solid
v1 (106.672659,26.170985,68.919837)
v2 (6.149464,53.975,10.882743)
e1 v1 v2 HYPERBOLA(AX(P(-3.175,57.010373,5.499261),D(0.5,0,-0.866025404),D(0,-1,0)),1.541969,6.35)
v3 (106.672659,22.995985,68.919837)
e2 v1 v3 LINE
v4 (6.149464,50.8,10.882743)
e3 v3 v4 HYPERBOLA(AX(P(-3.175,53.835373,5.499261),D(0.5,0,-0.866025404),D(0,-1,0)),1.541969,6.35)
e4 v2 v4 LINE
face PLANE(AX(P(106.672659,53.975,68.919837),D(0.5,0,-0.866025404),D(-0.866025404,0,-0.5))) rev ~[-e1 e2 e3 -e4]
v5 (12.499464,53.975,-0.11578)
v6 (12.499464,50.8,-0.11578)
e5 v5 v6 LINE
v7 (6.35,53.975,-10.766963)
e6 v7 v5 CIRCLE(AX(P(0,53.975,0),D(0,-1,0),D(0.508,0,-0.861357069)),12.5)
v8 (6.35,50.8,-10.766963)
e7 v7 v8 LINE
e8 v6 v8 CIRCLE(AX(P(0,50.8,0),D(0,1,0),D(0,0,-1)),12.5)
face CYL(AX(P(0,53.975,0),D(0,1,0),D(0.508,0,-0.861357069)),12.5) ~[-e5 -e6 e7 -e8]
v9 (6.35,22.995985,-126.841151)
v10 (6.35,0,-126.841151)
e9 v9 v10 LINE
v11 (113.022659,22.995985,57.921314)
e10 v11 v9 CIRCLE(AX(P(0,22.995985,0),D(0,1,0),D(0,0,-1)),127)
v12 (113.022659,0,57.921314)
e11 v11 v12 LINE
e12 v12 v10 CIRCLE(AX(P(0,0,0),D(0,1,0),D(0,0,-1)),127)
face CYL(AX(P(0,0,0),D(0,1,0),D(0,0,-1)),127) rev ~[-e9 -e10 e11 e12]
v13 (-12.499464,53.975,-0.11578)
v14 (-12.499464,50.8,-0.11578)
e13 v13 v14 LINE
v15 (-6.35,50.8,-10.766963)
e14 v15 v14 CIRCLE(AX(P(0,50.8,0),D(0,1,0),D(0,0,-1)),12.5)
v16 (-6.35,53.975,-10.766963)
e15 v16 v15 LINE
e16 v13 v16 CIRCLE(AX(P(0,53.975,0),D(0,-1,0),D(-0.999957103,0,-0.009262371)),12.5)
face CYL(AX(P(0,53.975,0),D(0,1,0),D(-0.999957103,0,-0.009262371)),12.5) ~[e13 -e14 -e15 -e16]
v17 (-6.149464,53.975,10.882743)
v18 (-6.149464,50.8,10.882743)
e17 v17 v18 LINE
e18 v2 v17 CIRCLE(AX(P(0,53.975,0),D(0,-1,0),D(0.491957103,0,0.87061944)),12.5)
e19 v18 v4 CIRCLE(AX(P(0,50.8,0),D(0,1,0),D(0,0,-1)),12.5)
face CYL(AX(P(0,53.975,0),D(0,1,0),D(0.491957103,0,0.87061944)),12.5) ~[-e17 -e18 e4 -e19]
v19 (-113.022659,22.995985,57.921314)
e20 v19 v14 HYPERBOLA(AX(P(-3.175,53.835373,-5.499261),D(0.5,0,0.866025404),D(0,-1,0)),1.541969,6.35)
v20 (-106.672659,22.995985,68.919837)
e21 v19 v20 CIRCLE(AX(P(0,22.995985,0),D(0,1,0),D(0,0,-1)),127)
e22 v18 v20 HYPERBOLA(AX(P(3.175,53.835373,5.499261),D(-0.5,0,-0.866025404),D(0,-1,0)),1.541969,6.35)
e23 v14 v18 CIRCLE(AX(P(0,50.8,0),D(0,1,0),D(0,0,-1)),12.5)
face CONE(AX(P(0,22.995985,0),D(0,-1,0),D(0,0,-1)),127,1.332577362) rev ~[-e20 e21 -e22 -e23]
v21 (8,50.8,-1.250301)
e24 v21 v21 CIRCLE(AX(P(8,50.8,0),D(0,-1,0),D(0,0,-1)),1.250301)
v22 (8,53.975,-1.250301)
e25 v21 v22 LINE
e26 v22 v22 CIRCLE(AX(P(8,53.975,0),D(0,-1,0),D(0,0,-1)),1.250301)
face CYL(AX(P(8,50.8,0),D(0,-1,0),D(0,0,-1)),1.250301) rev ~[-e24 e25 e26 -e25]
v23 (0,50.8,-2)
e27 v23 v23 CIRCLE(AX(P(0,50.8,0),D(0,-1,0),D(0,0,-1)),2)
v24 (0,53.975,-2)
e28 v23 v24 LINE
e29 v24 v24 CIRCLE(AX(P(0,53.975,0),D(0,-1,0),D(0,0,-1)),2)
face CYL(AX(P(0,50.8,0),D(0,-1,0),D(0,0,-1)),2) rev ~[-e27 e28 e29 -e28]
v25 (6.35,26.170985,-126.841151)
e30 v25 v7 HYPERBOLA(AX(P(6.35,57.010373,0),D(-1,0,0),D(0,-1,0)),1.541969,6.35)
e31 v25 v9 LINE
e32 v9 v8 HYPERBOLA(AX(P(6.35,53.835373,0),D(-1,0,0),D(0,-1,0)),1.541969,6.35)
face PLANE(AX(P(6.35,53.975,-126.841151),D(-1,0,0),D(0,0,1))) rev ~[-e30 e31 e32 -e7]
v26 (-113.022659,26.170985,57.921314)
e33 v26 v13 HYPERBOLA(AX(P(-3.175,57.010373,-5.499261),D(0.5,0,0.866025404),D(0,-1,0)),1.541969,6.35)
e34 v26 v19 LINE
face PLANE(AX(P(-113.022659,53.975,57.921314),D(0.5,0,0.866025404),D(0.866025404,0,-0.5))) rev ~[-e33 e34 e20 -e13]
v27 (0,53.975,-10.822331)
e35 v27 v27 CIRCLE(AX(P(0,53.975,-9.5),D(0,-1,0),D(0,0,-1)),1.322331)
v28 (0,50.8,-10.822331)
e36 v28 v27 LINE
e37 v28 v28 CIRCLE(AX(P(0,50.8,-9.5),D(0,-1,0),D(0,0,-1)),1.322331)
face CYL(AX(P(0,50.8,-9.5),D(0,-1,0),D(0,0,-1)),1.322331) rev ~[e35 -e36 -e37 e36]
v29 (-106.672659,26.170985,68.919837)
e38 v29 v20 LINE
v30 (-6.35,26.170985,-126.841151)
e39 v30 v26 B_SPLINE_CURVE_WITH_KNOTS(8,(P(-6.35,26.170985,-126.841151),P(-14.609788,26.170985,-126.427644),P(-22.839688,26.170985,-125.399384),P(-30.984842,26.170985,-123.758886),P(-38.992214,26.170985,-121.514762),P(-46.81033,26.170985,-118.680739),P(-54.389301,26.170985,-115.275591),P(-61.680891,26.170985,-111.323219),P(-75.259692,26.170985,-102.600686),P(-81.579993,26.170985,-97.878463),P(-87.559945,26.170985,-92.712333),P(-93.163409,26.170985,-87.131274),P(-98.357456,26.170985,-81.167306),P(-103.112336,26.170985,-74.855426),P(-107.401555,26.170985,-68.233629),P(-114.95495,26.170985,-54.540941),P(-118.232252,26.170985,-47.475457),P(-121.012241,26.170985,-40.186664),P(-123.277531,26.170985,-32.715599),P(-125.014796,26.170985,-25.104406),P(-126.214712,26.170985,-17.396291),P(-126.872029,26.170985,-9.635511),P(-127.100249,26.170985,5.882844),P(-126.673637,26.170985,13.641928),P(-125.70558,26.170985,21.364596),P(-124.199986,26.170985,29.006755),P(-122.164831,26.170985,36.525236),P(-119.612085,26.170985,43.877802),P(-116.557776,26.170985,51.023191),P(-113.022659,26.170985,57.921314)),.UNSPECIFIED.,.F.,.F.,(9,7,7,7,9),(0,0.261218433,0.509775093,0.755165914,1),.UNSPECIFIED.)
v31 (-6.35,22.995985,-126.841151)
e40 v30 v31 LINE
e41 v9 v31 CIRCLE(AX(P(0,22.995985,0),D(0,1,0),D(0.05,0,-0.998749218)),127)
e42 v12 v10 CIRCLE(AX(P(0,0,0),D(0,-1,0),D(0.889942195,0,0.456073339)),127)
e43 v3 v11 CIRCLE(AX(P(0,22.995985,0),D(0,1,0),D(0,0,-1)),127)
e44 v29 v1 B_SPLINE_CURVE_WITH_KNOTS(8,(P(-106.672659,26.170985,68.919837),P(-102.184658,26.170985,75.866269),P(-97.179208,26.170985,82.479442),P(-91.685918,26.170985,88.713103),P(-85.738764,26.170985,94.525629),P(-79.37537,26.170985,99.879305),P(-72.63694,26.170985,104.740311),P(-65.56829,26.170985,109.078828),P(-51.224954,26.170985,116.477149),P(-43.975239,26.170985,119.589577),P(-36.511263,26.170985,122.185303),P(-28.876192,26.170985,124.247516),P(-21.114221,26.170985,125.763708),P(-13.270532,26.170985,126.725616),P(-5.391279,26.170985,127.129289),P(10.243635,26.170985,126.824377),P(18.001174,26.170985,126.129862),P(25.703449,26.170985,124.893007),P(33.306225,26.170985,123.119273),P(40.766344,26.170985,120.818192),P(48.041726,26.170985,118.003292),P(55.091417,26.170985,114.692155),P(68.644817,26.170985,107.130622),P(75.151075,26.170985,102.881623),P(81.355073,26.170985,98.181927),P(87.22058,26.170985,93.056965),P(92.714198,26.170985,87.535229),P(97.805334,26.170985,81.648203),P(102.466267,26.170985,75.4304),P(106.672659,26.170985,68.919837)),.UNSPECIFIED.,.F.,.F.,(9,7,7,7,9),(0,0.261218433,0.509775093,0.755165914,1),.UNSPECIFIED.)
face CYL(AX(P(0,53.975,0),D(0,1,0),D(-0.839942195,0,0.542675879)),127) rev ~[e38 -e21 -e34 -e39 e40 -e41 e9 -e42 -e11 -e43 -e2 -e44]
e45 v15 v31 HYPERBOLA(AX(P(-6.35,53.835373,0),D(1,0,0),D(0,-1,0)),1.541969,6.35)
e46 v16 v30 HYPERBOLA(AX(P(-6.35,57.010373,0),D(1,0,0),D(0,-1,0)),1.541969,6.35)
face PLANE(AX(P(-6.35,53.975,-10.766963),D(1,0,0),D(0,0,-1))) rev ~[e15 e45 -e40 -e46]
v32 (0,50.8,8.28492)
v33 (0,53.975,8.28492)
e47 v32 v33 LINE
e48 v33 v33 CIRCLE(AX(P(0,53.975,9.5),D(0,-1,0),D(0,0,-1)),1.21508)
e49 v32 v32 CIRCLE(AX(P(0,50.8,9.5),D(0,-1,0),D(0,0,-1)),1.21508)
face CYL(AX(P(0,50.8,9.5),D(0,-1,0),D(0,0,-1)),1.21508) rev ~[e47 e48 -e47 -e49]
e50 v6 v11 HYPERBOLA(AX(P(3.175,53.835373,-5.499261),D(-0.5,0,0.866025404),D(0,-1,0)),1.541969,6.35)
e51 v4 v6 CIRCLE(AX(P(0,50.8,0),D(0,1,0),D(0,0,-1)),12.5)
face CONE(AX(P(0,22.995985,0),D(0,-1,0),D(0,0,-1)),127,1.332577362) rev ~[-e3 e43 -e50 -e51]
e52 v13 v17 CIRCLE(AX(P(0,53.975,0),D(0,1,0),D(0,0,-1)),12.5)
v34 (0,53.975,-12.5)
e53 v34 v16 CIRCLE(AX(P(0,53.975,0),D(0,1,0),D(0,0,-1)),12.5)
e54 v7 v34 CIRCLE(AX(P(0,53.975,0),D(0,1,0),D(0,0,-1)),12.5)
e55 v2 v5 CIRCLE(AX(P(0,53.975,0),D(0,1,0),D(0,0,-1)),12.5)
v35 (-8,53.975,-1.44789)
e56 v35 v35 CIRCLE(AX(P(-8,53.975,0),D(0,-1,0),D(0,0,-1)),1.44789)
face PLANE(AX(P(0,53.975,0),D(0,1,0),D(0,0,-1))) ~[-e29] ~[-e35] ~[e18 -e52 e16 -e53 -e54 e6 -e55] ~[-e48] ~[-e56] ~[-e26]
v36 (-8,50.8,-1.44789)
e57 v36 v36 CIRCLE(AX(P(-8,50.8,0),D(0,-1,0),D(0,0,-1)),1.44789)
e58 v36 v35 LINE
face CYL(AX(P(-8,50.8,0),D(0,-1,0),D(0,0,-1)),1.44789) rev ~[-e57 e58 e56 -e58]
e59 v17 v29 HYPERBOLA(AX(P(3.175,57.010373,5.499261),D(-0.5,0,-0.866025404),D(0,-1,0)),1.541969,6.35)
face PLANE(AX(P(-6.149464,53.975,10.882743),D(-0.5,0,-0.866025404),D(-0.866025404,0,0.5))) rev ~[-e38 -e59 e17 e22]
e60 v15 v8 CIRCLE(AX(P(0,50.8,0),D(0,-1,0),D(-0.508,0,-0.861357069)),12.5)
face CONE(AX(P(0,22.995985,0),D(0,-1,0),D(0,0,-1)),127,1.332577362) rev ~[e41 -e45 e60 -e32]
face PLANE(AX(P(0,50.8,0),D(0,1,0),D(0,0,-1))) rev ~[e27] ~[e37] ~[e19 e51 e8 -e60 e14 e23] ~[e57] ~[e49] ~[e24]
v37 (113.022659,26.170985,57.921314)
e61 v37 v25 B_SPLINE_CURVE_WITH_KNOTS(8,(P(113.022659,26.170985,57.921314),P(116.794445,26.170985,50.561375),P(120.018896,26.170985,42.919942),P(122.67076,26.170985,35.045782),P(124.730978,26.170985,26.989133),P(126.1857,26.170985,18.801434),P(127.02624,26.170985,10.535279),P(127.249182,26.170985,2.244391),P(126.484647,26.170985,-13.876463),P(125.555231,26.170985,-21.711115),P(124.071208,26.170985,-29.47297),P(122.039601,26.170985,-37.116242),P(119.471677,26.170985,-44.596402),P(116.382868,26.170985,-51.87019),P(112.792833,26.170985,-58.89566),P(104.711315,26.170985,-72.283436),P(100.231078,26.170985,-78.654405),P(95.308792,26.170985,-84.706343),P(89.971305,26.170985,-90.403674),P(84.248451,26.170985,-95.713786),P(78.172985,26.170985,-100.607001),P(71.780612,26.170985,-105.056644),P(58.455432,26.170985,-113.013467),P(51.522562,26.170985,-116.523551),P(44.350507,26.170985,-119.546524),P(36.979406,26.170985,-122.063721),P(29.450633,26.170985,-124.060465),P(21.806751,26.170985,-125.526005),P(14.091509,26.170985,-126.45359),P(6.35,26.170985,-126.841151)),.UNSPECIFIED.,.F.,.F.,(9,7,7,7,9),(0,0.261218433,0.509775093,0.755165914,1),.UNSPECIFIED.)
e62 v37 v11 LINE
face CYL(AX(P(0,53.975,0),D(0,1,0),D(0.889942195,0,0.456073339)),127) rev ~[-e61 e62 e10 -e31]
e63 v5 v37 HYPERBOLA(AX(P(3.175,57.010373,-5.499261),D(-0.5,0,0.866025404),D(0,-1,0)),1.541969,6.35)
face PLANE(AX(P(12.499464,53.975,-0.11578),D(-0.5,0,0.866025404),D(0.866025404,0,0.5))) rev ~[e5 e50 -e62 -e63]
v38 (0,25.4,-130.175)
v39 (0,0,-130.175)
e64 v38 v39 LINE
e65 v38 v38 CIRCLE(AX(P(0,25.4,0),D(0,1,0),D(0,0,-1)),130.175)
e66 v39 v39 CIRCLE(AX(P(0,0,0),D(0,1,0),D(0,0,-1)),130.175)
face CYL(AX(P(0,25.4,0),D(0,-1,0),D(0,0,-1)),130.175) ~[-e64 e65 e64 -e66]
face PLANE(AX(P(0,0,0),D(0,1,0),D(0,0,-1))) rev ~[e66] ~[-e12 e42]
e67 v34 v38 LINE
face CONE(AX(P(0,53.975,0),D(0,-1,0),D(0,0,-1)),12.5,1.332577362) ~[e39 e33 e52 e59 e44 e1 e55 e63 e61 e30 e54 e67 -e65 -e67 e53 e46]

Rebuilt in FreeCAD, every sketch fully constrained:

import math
import FreeCAD as App
import Part
import Sketcher
from FreeCAD import Vector
Q = App.Units.Quantity


def add_polygon(sketch, points):
    """Adds a closed chain of lines whose ends are joined by coincident constraints."""
    first, n = sketch.GeometryCount, len(points)
    for a, b in zip(points, points[1:] + points[:1]):
        sketch.addGeometry(Part.LineSegment(App.Vector(*a, 0), App.Vector(*b, 0)), False)
    for i in range(n):
        sketch.addConstraint(Sketcher.Constraint("Coincident", first + i, 2, first + (i + 1) % n, 1))

doc = App.newDocument("Part")
body = doc.addObject("PartDesign::Body", "Body")

sketch1 = body.newObject("Sketcher::SketchObject", "Sketch")
sketch1.AttachmentSupport = (doc.getObject("XY_Plane"), [""])
sketch1.MapMode = "FlatFace"
add_polygon(sketch1, [(0, 54), (0, 50.8), (12.5, 50.8), (127, 23), (127, 0), (130.2, 0), (130.2, 25.4), (12.5, 54)])
sketch1.addConstraint([
    Sketcher.Constraint("Vertical", 0),
    Sketcher.Constraint("Horizontal", 1),
    Sketcher.Constraint("Vertical", 3),
    Sketcher.Constraint("Horizontal", 4),
    Sketcher.Constraint("Vertical", 5),
    Sketcher.Constraint("Horizontal", 7),
    Sketcher.Constraint("PointOnObject", 0, 2, -2),
    Sketcher.Constraint("PointOnObject", 3, 2, -1),
    Sketcher.Constraint("Parallel", 2, 6),
    Sketcher.Constraint("Vertical", 1, 2, 6, 2),
    Sketcher.Constraint("Equal", 4, 0),
    Sketcher.Constraint("DistanceX", 1, 1, 1, 2, Q("12.5 mm")),
    Sketcher.Constraint("DistanceY", 5, 1, 5, 2, Q("25.4 mm")),
    Sketcher.Constraint("DistanceX", -1, 1, 2, 2, Q("127 mm")),
    Sketcher.Constraint("DistanceY", -1, 1, 0, 2, Q("50.8 mm")),
    Sketcher.Constraint("DistanceX", 4, 1, 4, 2, Q("3.175 mm")),
])
revolution = body.newObject("PartDesign::Revolution", "Revolution")
revolution.Profile = sketch1
revolution.ReferenceAxis = (sketch1, ["V_Axis"])
revolution.Angle = 360

sketch2 = body.newObject("Sketcher::SketchObject", "Sketch001")
sketch2.AttachmentSupport = (doc.getObject("XZ_Plane"), [""])
sketch2.MapMode = "FlatFace"
sketch2.AttachmentOffset = App.Placement(Vector(0, 0, -53.975), App.Rotation())
sketch2.addGeometry([
    Part.ArcOfCircle(Part.Circle(Vector(0, 0, 0), Vector(0, 0, 1), 13), math.radians(-179), math.radians(-121)),
    Part.LineSegment(Vector(-6, -11, 0), Vector(-6, -127, 0)),
    Part.ArcOfCircle(Part.Circle(Vector(0, 0, 0), Vector(0, 0, 1), 127), math.radians(153), math.radians(267)),
    Part.LineSegment(Vector(-113, 58, 0), Vector(-12, 0, 0)),
    Part.LineSegment(Vector(6, -127, 0), Vector(6, -11, 0)),
    Part.ArcOfCircle(Part.Circle(Vector(0, 0, 0), Vector(0, 0, 1), 13), math.radians(-59), math.radians(-1)),
    Part.LineSegment(Vector(12, 0, 0), Vector(113, 58, 0)),
    Part.ArcOfCircle(Part.Circle(Vector(0, 0, 0), Vector(0, 0, 1), 127), math.radians(-87), math.radians(27)),
    Part.ArcOfCircle(Part.Circle(Vector(0, 0, 0), Vector(0, 0, 1), 13), math.radians(61), math.radians(119)),
    Part.LineSegment(Vector(-6, 11, 0), Vector(-107, 69, 0)),
    Part.ArcOfCircle(Part.Circle(Vector(0, 0, 0), Vector(0, 0, 1), 127), math.radians(33), math.radians(147)),
    Part.LineSegment(Vector(107, 69, 0), Vector(6, 11, 0)),
], False)
sketch2.addConstraint([
    Sketcher.Constraint("Coincident", 0, 2, 1, 1),
    Sketcher.Constraint("Coincident", 1, 2, 2, 2),
    Sketcher.Constraint("Coincident", 2, 1, 3, 1),
    Sketcher.Constraint("Coincident", 3, 2, 0, 1),
    Sketcher.Constraint("Coincident", 4, 2, 5, 1),
    Sketcher.Constraint("Coincident", 5, 2, 6, 1),
    Sketcher.Constraint("Coincident", 6, 2, 7, 2),
    Sketcher.Constraint("Coincident", 7, 1, 4, 1),
    Sketcher.Constraint("Coincident", 8, 2, 9, 1),
    Sketcher.Constraint("Coincident", 9, 2, 10, 2),
    Sketcher.Constraint("Coincident", 10, 1, 11, 1),
    Sketcher.Constraint("Coincident", 11, 2, 8, 1),
    Sketcher.Constraint("Vertical", 1),
    Sketcher.Constraint("Vertical", 4),
    Sketcher.Constraint("Coincident", 0, 3, -1, 1),
    Sketcher.Constraint("Coincident", 2, 3, -1, 1),
    Sketcher.Constraint("Coincident", 5, 3, -1, 1),
    Sketcher.Constraint("Coincident", 7, 3, -1, 1),
    Sketcher.Constraint("Coincident", 8, 3, -1, 1),
    Sketcher.Constraint("Coincident", 10, 3, -1, 1),
    Sketcher.Constraint("Equal", 0, 5),
    Sketcher.Constraint("Equal", 2, 7),
    Sketcher.Constraint("Equal", 5, 8),
    Sketcher.Constraint("Equal", 7, 10),
    Sketcher.Constraint("Parallel", 3, 9),
    Sketcher.Constraint("Parallel", 6, 11),
    Sketcher.Constraint("Horizontal", 0, 2, 4, 2),
    Sketcher.Constraint("Horizontal", 3, 2, 5, 2),
    Sketcher.Constraint("Horizontal", 2, 1, 6, 2),
    Sketcher.Constraint("Horizontal", 9, 2, 10, 1),
    Sketcher.Constraint("Equal", 6, 9),
    Sketcher.Constraint("Radius", 2, Q("127 mm")),
    Sketcher.Constraint("Radius", 0, Q("12.5 mm")),
    Sketcher.Constraint("Angle", 3, Q("-30 deg")),
    Sketcher.Constraint("DistanceX", 1, 2, 7, 1, Q("12.7 mm")),
    Sketcher.Constraint("DistanceX", 2, 1, 9, 2, Q("6.35 mm")),
])
pocket1 = body.newObject("PartDesign::Pocket", "Pocket")
pocket1.Profile = sketch2
pocket1.Type = "ThroughAll"
pocket1.Reversed = True

sketch3 = body.newObject("Sketcher::SketchObject", "Sketch002")
sketch3.AttachmentSupport = (doc.getObject("XZ_Plane"), [""])
sketch3.MapMode = "FlatFace"
sketch3.AttachmentOffset = App.Placement(Vector(0, 0, -50.8), App.Rotation())
sketch3.addGeometry([
    Part.Circle(Vector(0, 0, 0), Vector(0, 0, 1), 2),
    Part.Circle(Vector(0, 9.5, 0), Vector(0, 0, 1), 1.2),
    Part.Circle(Vector(8, 0, 0), Vector(0, 0, 1), 1.3),
    Part.Circle(Vector(0, -9.5, 0), Vector(0, 0, 1), 1.3),
    Part.Circle(Vector(-8, 0, 0), Vector(0, 0, 1), 1.4),
], False)
sketch3.addConstraint([
    Sketcher.Constraint("Coincident", 0, 3, -1, 1),
    Sketcher.Constraint("Symmetric", 1, 3, 3, 3, -1, 1),
    Sketcher.Constraint("Symmetric", 2, 3, 4, 3, -1, 1),
    Sketcher.Constraint("PointOnObject", 1, 3, -2),
    Sketcher.Constraint("PointOnObject", 2, 3, -1),
    Sketcher.Constraint("Diameter", 0, Q("4 mm")),
    Sketcher.Constraint("DistanceX", -1, 1, 2, 3, Q("8 mm")),
    Sketcher.Constraint("DistanceY", 3, 3, 1, 3, Q("19 mm")),
    Sketcher.Constraint("Diameter", 2, Q("2.500602 mm")),
    Sketcher.Constraint("Diameter", 1, Q("2.43016 mm")),
    Sketcher.Constraint("Diameter", 3, Q("2.644662 mm")),
    Sketcher.Constraint("Diameter", 4, Q("2.89578 mm")),
])
pocket2 = body.newObject("PartDesign::Pocket", "Pocket001")
pocket2.Profile = sketch3
pocket2.Type = "ThroughAll"

doc.recompute()
